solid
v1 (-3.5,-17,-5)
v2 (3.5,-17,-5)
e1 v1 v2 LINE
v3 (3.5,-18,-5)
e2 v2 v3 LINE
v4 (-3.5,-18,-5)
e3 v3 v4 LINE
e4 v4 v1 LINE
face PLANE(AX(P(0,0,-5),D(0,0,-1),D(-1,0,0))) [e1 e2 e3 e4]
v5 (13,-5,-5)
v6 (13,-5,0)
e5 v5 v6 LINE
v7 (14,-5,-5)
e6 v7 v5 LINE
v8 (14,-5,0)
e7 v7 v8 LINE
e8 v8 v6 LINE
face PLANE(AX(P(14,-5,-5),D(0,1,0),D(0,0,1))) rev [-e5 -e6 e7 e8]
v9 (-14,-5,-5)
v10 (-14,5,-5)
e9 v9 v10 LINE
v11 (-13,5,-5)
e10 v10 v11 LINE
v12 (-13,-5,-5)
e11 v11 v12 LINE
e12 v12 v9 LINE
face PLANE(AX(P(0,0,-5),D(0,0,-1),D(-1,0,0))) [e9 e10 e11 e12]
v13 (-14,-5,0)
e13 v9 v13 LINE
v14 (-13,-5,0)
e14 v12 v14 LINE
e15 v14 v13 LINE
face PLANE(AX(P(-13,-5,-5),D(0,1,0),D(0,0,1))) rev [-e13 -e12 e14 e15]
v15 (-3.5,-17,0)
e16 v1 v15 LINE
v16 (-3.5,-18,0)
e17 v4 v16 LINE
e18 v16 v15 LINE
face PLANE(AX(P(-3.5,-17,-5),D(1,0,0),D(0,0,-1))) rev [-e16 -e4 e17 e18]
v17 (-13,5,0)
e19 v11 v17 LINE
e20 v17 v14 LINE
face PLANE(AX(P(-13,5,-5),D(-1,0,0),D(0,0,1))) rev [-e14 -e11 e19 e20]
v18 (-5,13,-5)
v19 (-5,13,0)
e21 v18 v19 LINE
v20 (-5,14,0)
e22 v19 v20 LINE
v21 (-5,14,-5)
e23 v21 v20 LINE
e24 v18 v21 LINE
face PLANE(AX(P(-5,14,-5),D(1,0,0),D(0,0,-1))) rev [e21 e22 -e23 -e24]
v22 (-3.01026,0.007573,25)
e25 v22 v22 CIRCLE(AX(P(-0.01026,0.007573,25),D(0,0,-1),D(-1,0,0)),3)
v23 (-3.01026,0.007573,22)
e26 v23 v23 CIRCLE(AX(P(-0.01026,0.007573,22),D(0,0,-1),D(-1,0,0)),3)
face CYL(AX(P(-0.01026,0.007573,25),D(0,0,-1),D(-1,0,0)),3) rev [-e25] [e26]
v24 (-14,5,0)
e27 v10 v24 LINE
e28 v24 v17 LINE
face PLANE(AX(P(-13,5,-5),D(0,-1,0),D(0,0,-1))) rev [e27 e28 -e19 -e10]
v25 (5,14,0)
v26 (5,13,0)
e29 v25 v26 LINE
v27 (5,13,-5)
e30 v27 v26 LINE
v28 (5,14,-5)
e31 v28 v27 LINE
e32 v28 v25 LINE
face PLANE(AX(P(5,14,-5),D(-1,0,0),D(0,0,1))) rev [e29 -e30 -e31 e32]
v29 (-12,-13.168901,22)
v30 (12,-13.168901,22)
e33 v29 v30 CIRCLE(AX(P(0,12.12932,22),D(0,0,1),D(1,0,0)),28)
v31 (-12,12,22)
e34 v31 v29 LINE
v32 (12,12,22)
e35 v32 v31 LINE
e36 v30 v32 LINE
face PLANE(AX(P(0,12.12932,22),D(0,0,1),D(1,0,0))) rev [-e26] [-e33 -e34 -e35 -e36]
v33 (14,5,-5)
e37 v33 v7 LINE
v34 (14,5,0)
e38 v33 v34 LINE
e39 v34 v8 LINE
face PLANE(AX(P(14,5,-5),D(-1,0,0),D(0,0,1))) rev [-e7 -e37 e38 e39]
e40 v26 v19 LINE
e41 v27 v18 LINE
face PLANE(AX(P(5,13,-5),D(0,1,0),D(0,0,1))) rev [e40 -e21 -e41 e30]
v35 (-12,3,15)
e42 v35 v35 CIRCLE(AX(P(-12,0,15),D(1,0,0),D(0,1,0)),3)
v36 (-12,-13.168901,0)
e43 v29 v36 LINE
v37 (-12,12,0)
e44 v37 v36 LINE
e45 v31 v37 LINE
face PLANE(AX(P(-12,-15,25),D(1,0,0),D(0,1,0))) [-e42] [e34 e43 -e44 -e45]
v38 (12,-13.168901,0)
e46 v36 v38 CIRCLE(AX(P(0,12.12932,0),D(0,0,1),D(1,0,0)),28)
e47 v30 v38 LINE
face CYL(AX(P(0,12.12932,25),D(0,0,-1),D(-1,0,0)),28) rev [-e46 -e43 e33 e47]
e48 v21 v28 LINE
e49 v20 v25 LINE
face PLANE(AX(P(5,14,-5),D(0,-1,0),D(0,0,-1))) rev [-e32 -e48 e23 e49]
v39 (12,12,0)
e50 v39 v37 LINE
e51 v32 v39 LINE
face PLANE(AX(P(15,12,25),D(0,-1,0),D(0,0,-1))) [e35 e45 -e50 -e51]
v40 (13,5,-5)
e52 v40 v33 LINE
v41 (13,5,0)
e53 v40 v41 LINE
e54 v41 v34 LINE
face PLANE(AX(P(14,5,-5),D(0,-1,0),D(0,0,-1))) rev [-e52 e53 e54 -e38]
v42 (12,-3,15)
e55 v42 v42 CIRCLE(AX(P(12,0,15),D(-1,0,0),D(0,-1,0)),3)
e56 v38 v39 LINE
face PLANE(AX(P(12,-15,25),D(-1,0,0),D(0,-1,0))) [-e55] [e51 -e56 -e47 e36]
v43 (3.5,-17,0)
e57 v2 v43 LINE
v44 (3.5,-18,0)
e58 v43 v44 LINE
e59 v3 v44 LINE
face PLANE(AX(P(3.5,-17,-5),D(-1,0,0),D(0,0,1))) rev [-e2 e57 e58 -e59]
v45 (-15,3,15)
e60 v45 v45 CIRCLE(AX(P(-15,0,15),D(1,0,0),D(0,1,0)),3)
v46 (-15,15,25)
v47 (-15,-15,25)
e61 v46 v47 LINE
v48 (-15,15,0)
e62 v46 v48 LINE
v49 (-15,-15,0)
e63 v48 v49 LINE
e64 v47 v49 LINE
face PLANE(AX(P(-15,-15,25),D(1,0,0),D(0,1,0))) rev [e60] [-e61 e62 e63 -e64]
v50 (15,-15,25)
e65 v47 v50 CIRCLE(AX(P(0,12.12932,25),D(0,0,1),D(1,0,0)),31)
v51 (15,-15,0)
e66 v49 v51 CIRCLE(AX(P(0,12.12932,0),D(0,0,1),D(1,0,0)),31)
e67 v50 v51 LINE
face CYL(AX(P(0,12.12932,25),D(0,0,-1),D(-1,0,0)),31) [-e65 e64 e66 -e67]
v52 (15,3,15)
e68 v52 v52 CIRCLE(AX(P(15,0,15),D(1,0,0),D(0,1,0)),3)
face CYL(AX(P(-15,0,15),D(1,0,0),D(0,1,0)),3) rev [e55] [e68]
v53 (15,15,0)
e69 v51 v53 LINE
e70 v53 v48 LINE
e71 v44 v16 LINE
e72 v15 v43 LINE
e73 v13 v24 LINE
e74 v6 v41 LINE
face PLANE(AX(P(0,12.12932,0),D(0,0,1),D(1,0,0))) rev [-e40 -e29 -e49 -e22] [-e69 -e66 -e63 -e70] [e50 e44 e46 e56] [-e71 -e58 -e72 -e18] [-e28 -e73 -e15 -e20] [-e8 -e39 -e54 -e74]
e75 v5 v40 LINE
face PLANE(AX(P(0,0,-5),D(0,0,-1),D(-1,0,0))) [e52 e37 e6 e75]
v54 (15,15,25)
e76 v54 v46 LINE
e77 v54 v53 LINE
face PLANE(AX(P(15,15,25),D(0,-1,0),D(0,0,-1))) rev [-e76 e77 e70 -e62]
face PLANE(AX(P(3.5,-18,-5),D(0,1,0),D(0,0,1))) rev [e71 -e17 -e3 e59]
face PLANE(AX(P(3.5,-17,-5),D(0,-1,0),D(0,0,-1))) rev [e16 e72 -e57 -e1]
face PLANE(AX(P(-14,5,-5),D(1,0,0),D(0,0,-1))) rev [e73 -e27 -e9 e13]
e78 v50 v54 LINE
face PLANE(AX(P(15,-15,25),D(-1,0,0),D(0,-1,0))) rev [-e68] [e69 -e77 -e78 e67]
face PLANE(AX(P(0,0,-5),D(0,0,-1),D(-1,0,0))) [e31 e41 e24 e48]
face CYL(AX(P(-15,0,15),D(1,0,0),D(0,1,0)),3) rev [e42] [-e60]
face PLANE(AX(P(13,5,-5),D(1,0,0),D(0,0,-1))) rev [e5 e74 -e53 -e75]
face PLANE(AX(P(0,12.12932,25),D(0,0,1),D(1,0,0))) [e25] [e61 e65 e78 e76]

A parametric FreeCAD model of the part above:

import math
import FreeCAD as App
import Part
import Sketcher
from FreeCAD import Vector
Q = App.Units.Quantity


def faces_at(feature, points):
    """Names of the faces that lie closest to the given points."""
    faces = feature.Shape.Faces
    near = lambda p: min(range(len(faces)), key=lambda i: faces[i].distToShape(Part.Vertex(*p))[0])
    return sorted({f"Face{near(p) + 1}" for p in points})

doc = App.newDocument("Part")
body = doc.addObject("PartDesign::Body", "Body")

# Sketch on XY plane
sketch1 = body.newObject("Sketcher::SketchObject", "Sketch")
sketch1.AttachmentSupport = (doc.getObject("XY_Plane"), [""])
sketch1.MapMode = "FlatFace"
sketch1.addGeometry(Part.LineSegment(Vector(15, -15, 0), Vector(15, 15, 0)), False)
sketch1.addGeometry(Part.LineSegment(Vector(15, 15, 0), Vector(-15, 15, 0)), False)
sketch1.addGeometry(Part.LineSegment(Vector(-15, 15, 0), Vector(-15, -15, 0)), False)
sketch1.addGeometry(Part.ArcOfCircle(Part.Circle(Vector(0, 12, 0), Vector(0, 0, 1), 31), math.radians(-119), math.radians(-61)), False)
sketch1.addConstraint(Sketcher.Constraint("Coincident", 0, 2, 1, 1))
sketch1.addConstraint(Sketcher.Constraint("Coincident", 1, 2, 2, 1))
sketch1.addConstraint(Sketcher.Constraint("Coincident", 2, 2, 3, 1))
sketch1.addConstraint(Sketcher.Constraint("Coincident", 3, 2, 0, 1))
sketch1.addConstraint(Sketcher.Constraint("Vertical", 0))
sketch1.addConstraint(Sketcher.Constraint("Horizontal", 1))
sketch1.addConstraint(Sketcher.Constraint("Vertical", 2))
sketch1.addConstraint(Sketcher.Constraint("Symmetric", 0, 2, 2, 2, -1, 1))
sketch1.addConstraint(Sketcher.Constraint("PointOnObject", 3, 3, -2))
sketch1.addConstraint(Sketcher.Constraint("Equal", 1, 0))
sketch1.addConstraint(Sketcher.Constraint("Radius", 3, Q("31 mm")))
sketch1.addConstraint(Sketcher.Constraint("DistanceX", 1, 2, 1, 1, Q("30 mm")))
pad1 = body.newObject("PartDesign::Pad", "Pad")
pad1.Profile = sketch1
pad1.Length = 25
doc.recompute()

thickness = body.newObject("PartDesign::Thickness", "Thickness")
thickness.Base = (pad1, faces_at(pad1, [(0, -1.935, 0)]))
thickness.Value = 3
thickness.Reversed = True
thickness.Join = "Intersection"

# Sketch on XY plane
sketch2 = body.newObject("Sketcher::SketchObject", "Sketch001")
sketch2.AttachmentSupport = (doc.getObject("XY_Plane"), [""])
sketch2.MapMode = "FlatFace"
sketch2.AttachmentOffset = App.Placement(Vector(0, 0, 22), App.Rotation())
sketch2.addGeometry(Part.Circle(Vector(0, 0, 0), Vector(0, 0, 1), 3), False)
sketch2.addConstraint(Sketcher.Constraint("Diameter", 0, Q("6 mm")))
sketch2.addConstraint(Sketcher.Constraint("DistanceX", 0, 3, -1, 1, Q("0.01026 mm")))
sketch2.addConstraint(Sketcher.Constraint("DistanceY", -1, 1, 0, 3, Q("0.007573 mm")))
pocket1 = body.newObject("PartDesign::Pocket", "Pocket")
pocket1.Profile = sketch2
pocket1.Length = 3
pocket1.Reversed = True

# Sketch on XY plane
sketch3 = body.newObject("Sketcher::SketchObject", "Sketch002")
sketch3.AttachmentSupport = (doc.getObject("XY_Plane"), [""])
sketch3.MapMode = "FlatFace"
sketch3.addGeometry(Part.LineSegment(Vector(5, 14, 0), Vector(5, 13, 0)), False)
sketch3.addGeometry(Part.LineSegment(Vector(5, 13, 0), Vector(-5, 13, 0)), False)
sketch3.addGeometry(Part.LineSegment(Vector(-5, 13, 0), Vector(-5, 14, 0)), False)
sketch3.addGeometry(Part.LineSegment(Vector(-5, 14, 0), Vector(5, 14, 0)), False)
sketch3.addGeometry(Part.LineSegment(Vector(14, 5, 0), Vector(14, -5, 0)), False)
sketch3.addGeometry(Part.LineSegment(Vector(14, -5, 0), Vector(13, -5, 0)), False)
sketch3.addGeometry(Part.LineSegment(Vector(13, -5, 0), Vector(13, 5, 0)), False)
sketch3.addGeometry(Part.LineSegment(Vector(13, 5, 0), Vector(14, 5, 0)), False)
sketch3.addGeometry(Part.LineSegment(Vector(3.5, -17, 0), Vector(3.5, -18, 0)), False)
sketch3.addGeometry(Part.LineSegment(Vector(3.5, -18, 0), Vector(-3.5, -18, 0)), False)
sketch3.addGeometry(Part.LineSegment(Vector(-3.5, -18, 0), Vector(-3.5, -17, 0)), False)
sketch3.addGeometry(Part.LineSegment(Vector(-3.5, -17, 0), Vector(3.5, -17, 0)), False)
sketch3.addGeometry(Part.LineSegment(Vector(-13, 5, 0), Vector(-13, -5, 0)), False)
sketch3.addGeometry(Part.LineSegment(Vector(-13, -5, 0), Vector(-14, -5, 0)), False)
sketch3.addGeometry(Part.LineSegment(Vector(-14, -5, 0), Vector(-14, 5, 0)), False)
sketch3.addGeometry(Part.LineSegment(Vector(-14, 5, 0), Vector(-13, 5, 0)), False)
sketch3.addConstraint(Sketcher.Constraint("Coincident", 0, 2, 1, 1))
sketch3.addConstraint(Sketcher.Constraint("Coincident", 1, 2, 2, 1))
sketch3.addConstraint(Sketcher.Constraint("Coincident", 2, 2, 3, 1))
sketch3.addConstraint(Sketcher.Constraint("Coincident", 3, 2, 0, 1))
sketch3.addConstraint(Sketcher.Constraint("Coincident", 4, 2, 5, 1))
sketch3.addConstraint(Sketcher.Constraint("Coincident", 5, 2, 6, 1))
sketch3.addConstraint(Sketcher.Constraint("Coincident", 6, 2, 7, 1))
sketch3.addConstraint(Sketcher.Constraint("Coincident", 7, 2, 4, 1))
sketch3.addConstraint(Sketcher.Constraint("Coincident", 8, 2, 9, 1))
sketch3.addConstraint(Sketcher.Constraint("Coincident", 9, 2, 10, 1))
sketch3.addConstraint(Sketcher.Constraint("Coincident", 10, 2, 11, 1))
sketch3.addConstraint(Sketcher.Constraint("Coincident", 11, 2, 8, 1))
sketch3.addConstraint(Sketcher.Constraint("Coincident", 12, 2, 13, 1))
sketch3.addConstraint(Sketcher.Constraint("Coincident", 13, 2, 14, 1))
sketch3.addConstraint(Sketcher.Constraint("Coincident", 14, 2, 15, 1))
sketch3.addConstraint(Sketcher.Constraint("Coincident", 15, 2, 12, 1))
sketch3.addConstraint(Sketcher.Constraint("Vertical", 0))
sketch3.addConstraint(Sketcher.Constraint("Horizontal", 1))
sketch3.addConstraint(Sketcher.Constraint("Vertical", 2))
sketch3.addConstraint(Sketcher.Constraint("Horizontal", 3))
sketch3.addConstraint(Sketcher.Constraint("Vertical", 4))
sketch3.addConstraint(Sketcher.Constraint("Horizontal", 5))
sketch3.addConstraint(Sketcher.Constraint("Vertical", 6))
sketch3.addConstraint(Sketcher.Constraint("Horizontal", 7))
sketch3.addConstraint(Sketcher.Constraint("Vertical", 8))
sketch3.addConstraint(Sketcher.Constraint("Horizontal", 9))
sketch3.addConstraint(Sketcher.Constraint("Vertical", 10))
sketch3.addConstraint(Sketcher.Constraint("Horizontal", 11))
sketch3.addConstraint(Sketcher.Constraint("Vertical", 12))
sketch3.addConstraint(Sketcher.Constraint("Horizontal", 13))
sketch3.addConstraint(Sketcher.Constraint("Vertical", 14))
sketch3.addConstraint(Sketcher.Constraint("Horizontal", 15))
sketch3.addConstraint(Sketcher.Constraint("Symmetric", 6, 2, 12, 2, -1, 1))
sketch3.addConstraint(Sketcher.Constraint("Symmetric", 4, 2, 14, 2, -1, 1))
sketch3.addConstraint(Sketcher.Constraint("Horizontal", 5, 2, 12, 2))
sketch3.addConstraint(Sketcher.Constraint("Equal", 15, 0))
sketch3.addConstraint(Sketcher.Constraint("Equal", 3, 4))
sketch3.addConstraint(Sketcher.Constraint("Equal", 2, 8))
sketch3.addConstraint(Sketcher.Constraint("DistanceX", 1, 2, 1, 1, Q("10 mm")))
sketch3.addConstraint(Sketcher.Constraint("DistanceX", 5, 2, 5, 1, Q("1 mm")))
sketch3.addConstraint(Sketcher.Constraint("DistanceX", 9, 2, 9, 1, Q("7 mm")))
sketch3.addConstraint(Sketcher.Constraint("DistanceX", -1, 1, 0, 2, Q("5 mm")))
sketch3.addConstraint(Sketcher.Constraint("DistanceY", -1, 1, 0, 2, Q("13 mm")))
sketch3.addConstraint(Sketcher.Constraint("DistanceX", -1, 1, 4, 2, Q("14 mm")))
sketch3.addConstraint(Sketcher.Constraint("DistanceY", 8, 2, -1, 1, Q("18 mm")))
sketch3.addConstraint(Sketcher.Constraint("DistanceX", -1, 1, 8, 2, Q("3.5 mm")))
pad2 = body.newObject("PartDesign::Pad", "Pad001")
pad2.Profile = sketch3
pad2.Length = 5
pad2.Reversed = True

# Sketch on YZ plane
sketch4 = body.newObject("Sketcher::SketchObject", "Sketch003")
sketch4.AttachmentSupport = (doc.getObject("YZ_Plane"), [""])
sketch4.MapMode = "FlatFace"
sketch4.AttachmentOffset = App.Placement(Vector(0, 0, 15), App.Rotation())
sketch4.addGeometry(Part.Circle(Vector(0, 15, 0), Vector(0, 0, 1), 3), False)
sketch4.addConstraint(Sketcher.Constraint("PointOnObject", 0, 3, -2))
sketch4.addConstraint(Sketcher.Constraint("Diameter", 0, Q("6 mm")))
sketch4.addConstraint(Sketcher.Constraint("DistanceY", -1, 1, 0, 3, Q("15 mm")))
pocket2 = body.newObject("PartDesign::Pocket", "Pocket001")
pocket2.Profile = sketch4
pocket2.Length = 30

doc.recompute()
